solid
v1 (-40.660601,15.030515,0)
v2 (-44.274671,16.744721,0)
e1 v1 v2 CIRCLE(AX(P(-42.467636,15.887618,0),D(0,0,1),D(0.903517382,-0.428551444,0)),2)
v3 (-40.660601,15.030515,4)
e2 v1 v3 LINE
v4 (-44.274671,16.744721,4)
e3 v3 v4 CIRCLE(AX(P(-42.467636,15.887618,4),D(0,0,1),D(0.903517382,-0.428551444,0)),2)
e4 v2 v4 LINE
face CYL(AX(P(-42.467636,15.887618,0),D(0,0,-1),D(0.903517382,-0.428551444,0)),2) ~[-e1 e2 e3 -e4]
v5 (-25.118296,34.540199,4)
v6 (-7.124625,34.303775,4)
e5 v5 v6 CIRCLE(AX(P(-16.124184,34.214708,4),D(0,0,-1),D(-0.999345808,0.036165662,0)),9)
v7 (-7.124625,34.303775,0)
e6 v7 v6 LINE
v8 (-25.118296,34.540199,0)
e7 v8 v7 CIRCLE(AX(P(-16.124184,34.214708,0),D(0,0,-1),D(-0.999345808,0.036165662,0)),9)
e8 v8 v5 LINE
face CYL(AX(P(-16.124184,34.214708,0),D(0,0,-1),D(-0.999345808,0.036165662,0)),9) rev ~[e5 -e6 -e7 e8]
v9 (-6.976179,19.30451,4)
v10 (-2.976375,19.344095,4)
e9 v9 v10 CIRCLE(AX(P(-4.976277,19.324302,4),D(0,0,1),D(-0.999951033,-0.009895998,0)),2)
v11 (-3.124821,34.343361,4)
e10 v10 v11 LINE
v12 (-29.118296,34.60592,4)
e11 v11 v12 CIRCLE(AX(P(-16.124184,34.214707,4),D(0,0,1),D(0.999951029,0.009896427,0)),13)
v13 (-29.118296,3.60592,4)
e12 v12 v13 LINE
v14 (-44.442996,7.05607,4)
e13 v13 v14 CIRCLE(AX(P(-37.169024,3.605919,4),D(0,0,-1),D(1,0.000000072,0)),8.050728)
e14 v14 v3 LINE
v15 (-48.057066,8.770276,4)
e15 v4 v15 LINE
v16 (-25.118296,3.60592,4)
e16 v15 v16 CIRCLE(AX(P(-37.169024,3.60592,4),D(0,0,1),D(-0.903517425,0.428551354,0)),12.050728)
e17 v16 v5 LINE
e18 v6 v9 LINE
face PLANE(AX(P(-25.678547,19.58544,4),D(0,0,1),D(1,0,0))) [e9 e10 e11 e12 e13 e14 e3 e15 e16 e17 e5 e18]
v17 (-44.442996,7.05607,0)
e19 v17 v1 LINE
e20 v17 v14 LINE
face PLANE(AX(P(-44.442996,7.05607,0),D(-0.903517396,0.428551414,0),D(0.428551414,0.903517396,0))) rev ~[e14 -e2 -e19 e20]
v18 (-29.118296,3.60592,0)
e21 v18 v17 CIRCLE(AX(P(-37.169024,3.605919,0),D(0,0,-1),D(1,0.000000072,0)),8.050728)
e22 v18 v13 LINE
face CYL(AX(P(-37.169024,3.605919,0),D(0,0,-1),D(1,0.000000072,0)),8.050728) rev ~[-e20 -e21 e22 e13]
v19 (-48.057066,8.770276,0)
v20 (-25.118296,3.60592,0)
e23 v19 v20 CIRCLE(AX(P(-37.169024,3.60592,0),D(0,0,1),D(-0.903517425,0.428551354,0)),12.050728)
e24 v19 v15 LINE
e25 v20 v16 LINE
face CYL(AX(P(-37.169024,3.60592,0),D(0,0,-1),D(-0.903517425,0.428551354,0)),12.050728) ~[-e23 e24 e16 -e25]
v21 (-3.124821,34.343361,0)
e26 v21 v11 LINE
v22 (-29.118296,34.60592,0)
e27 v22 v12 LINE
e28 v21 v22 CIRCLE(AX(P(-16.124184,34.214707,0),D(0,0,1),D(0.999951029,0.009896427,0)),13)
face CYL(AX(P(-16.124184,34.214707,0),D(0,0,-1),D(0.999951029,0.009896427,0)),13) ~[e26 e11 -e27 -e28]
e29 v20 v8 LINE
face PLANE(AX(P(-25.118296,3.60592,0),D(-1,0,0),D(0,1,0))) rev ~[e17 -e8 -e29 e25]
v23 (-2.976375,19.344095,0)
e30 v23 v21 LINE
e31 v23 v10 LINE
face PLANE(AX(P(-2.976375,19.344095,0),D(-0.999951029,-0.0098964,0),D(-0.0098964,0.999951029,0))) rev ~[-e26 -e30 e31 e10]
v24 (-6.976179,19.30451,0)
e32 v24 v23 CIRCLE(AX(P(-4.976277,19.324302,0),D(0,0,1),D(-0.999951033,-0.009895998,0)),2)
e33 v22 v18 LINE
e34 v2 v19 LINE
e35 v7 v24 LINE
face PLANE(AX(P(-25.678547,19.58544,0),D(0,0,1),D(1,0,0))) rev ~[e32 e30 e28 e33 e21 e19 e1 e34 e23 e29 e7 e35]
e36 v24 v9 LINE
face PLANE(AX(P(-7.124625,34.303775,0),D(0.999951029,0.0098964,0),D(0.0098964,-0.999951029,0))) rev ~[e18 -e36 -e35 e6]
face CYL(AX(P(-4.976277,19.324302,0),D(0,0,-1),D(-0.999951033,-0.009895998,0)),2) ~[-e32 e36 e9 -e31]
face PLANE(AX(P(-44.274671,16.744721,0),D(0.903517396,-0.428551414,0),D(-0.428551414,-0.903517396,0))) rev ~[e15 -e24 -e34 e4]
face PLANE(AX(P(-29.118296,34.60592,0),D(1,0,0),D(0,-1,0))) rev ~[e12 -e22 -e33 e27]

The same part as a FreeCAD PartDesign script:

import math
import FreeCAD as App
import Part
import Sketcher
Q = App.Units.Quantity

doc = App.newDocument("Part")
body = doc.addObject("PartDesign::Body", "Body")

sketch1 = doc.addObject("Sketcher::SketchObject", "Sketch")
body.addObject(sketch1)
sketch1.AttachmentSupport = (doc.XY_Plane, [""])
sketch1.MapMode = "FlatFace"
sketch1.addGeometry(Part.LineSegment(App.Vector(-2.976375, 19.344095, 0), App.Vector(-3.124821, 34.343361, 0)), False)
sketch1.addGeometry(Part.ArcOfCircle(Part.Circle(App.Vector(-16.124184, 34.214707, 0), App.Vector(0, 0, 1), 13), math.radians(0.567033), math.radians(178.275522)), False)
sketch1.addGeometry(Part.LineSegment(App.Vector(-29.118296, 34.60592, 0), App.Vector(-29.118296, 3.60592, 0)), False)
sketch1.addGeometry(Part.ArcOfCircle(Part.Circle(App.Vector(-37.169024, 3.605919, 0), App.Vector(0, 0, 1), 8.050728), math.radians(154.624336), math.radians(360.000004)), False)
sketch1.addGeometry(Part.LineSegment(App.Vector(-44.442996, 7.05607, 0), App.Vector(-40.660601, 15.030515, 0)), False)
sketch1.addGeometry(Part.ArcOfCircle(Part.Circle(App.Vector(-42.467636, 15.887618, 0), App.Vector(0, 0, 1), 2), math.radians(-25.375666), math.radians(154.624334)), False)
sketch1.addGeometry(Part.LineSegment(App.Vector(-44.274671, 16.744721, 0), App.Vector(-48.057066, 8.770276, 0)), False)
sketch1.addGeometry(Part.ArcOfCircle(Part.Circle(App.Vector(-37.169024, 3.60592, 0), App.Vector(0, 0, 1), 12.050728), math.radians(154.62434), math.radians(359.999998)), False)
sketch1.addGeometry(Part.LineSegment(App.Vector(-25.118296, 3.60592, 0), App.Vector(-25.118296, 34.540199, 0)), False)
sketch1.addGeometry(Part.ArcOfCircle(Part.Circle(App.Vector(-16.124184, 34.214708, 0), App.Vector(0, 0, 1), 9), math.radians(0.567027), math.radians(177.927408)), False)
sketch1.addGeometry(Part.LineSegment(App.Vector(-7.124625, 34.303775, 0), App.Vector(-6.976179, 19.30451, 0)), False)
sketch1.addGeometry(Part.ArcOfCircle(Part.Circle(App.Vector(-4.976277, 19.324302, 0), App.Vector(0, 0, 1), 2), math.radians(-179.432992), math.radians(0.567037)), False)
sketch1.addConstraint(Sketcher.Constraint("Tangent", 0, 2, 1, 1))
sketch1.addConstraint(Sketcher.Constraint("Coincident", 1, 2, 2, 1))
sketch1.addConstraint(Sketcher.Constraint("Tangent", 2, 2, 3, 2))
sketch1.addConstraint(Sketcher.Constraint("Tangent", 3, 1, 4, 1))
sketch1.addConstraint(Sketcher.Constraint("Tangent", 4, 2, 5, 1))
sketch1.addConstraint(Sketcher.Constraint("Tangent", 5, 2, 6, 1))
sketch1.addConstraint(Sketcher.Constraint("Tangent", 6, 2, 7, 1))
sketch1.addConstraint(Sketcher.Constraint("Tangent", 7, 2, 8, 1))
sketch1.addConstraint(Sketcher.Constraint("Coincident", 8, 2, 9, 2))
sketch1.addConstraint(Sketcher.Constraint("Tangent", 9, 1, 10, 1))
sketch1.addConstraint(Sketcher.Constraint("Tangent", 10, 2, 11, 1))
sketch1.addConstraint(Sketcher.Constraint("Tangent", 11, 2, 0, 1))
sketch1.addConstraint(Sketcher.Constraint("Vertical", 2))
sketch1.addConstraint(Sketcher.Constraint("Vertical", 8))
sketch1.addConstraint(Sketcher.Constraint("Coincident", 7, 3, 3, 3))
sketch1.addConstraint(Sketcher.Constraint("Coincident", 9, 3, 1, 3))
sketch1.addConstraint(Sketcher.Constraint("Equal", 5, 11))
sketch1.addConstraint(Sketcher.Constraint("Parallel", 4, 6))
sketch1.addConstraint(Sketcher.Constraint("Parallel", 0, 10))
sketch1.addConstraint(Sketcher.Constraint("Radius", 1, Q("13 mm")))
sketch1.addConstraint(Sketcher.Constraint("Radius", 5, Q("2 mm")))
sketch1.addConstraint(Sketcher.Constraint("DistanceY", 2, 2, 2, 1, Q("31 mm")))
sketch1.addConstraint(Sketcher.Constraint("Distance", 0, Q("15.000001 mm")))
sketch1.addConstraint(Sketcher.Constraint("Distance", 4, Q("8.826001 mm")))
sketch1.addConstraint(Sketcher.Constraint("Radius", 3, Q("8.050728 mm")))
sketch1.addConstraint(Sketcher.Constraint("DistanceY", 8, 1, 8, 2, Q("30.934279 mm")))
sketch1.addConstraint(Sketcher.Constraint("DistanceY", -1, 1, 11, 3, Q("19.324302 mm")))
sketch1.addConstraint(Sketcher.Constraint("DistanceX", 4, 2, -1, 1, Q("40.660601 mm")))
sketch1.addConstraint(Sketcher.Constraint("DistanceY", -1, 1, 8, 2, Q("34.540199 mm")))
sketch1.addConstraint(Sketcher.Constraint("DistanceY", 3, 3, 5, 3, Q("12.281699 mm")))
pad1 = doc.addObject("PartDesign::Pad", "Pad")
body.addObject(pad1)
pad1.Profile = sketch1
pad1.Length = 4

doc.recompute()
